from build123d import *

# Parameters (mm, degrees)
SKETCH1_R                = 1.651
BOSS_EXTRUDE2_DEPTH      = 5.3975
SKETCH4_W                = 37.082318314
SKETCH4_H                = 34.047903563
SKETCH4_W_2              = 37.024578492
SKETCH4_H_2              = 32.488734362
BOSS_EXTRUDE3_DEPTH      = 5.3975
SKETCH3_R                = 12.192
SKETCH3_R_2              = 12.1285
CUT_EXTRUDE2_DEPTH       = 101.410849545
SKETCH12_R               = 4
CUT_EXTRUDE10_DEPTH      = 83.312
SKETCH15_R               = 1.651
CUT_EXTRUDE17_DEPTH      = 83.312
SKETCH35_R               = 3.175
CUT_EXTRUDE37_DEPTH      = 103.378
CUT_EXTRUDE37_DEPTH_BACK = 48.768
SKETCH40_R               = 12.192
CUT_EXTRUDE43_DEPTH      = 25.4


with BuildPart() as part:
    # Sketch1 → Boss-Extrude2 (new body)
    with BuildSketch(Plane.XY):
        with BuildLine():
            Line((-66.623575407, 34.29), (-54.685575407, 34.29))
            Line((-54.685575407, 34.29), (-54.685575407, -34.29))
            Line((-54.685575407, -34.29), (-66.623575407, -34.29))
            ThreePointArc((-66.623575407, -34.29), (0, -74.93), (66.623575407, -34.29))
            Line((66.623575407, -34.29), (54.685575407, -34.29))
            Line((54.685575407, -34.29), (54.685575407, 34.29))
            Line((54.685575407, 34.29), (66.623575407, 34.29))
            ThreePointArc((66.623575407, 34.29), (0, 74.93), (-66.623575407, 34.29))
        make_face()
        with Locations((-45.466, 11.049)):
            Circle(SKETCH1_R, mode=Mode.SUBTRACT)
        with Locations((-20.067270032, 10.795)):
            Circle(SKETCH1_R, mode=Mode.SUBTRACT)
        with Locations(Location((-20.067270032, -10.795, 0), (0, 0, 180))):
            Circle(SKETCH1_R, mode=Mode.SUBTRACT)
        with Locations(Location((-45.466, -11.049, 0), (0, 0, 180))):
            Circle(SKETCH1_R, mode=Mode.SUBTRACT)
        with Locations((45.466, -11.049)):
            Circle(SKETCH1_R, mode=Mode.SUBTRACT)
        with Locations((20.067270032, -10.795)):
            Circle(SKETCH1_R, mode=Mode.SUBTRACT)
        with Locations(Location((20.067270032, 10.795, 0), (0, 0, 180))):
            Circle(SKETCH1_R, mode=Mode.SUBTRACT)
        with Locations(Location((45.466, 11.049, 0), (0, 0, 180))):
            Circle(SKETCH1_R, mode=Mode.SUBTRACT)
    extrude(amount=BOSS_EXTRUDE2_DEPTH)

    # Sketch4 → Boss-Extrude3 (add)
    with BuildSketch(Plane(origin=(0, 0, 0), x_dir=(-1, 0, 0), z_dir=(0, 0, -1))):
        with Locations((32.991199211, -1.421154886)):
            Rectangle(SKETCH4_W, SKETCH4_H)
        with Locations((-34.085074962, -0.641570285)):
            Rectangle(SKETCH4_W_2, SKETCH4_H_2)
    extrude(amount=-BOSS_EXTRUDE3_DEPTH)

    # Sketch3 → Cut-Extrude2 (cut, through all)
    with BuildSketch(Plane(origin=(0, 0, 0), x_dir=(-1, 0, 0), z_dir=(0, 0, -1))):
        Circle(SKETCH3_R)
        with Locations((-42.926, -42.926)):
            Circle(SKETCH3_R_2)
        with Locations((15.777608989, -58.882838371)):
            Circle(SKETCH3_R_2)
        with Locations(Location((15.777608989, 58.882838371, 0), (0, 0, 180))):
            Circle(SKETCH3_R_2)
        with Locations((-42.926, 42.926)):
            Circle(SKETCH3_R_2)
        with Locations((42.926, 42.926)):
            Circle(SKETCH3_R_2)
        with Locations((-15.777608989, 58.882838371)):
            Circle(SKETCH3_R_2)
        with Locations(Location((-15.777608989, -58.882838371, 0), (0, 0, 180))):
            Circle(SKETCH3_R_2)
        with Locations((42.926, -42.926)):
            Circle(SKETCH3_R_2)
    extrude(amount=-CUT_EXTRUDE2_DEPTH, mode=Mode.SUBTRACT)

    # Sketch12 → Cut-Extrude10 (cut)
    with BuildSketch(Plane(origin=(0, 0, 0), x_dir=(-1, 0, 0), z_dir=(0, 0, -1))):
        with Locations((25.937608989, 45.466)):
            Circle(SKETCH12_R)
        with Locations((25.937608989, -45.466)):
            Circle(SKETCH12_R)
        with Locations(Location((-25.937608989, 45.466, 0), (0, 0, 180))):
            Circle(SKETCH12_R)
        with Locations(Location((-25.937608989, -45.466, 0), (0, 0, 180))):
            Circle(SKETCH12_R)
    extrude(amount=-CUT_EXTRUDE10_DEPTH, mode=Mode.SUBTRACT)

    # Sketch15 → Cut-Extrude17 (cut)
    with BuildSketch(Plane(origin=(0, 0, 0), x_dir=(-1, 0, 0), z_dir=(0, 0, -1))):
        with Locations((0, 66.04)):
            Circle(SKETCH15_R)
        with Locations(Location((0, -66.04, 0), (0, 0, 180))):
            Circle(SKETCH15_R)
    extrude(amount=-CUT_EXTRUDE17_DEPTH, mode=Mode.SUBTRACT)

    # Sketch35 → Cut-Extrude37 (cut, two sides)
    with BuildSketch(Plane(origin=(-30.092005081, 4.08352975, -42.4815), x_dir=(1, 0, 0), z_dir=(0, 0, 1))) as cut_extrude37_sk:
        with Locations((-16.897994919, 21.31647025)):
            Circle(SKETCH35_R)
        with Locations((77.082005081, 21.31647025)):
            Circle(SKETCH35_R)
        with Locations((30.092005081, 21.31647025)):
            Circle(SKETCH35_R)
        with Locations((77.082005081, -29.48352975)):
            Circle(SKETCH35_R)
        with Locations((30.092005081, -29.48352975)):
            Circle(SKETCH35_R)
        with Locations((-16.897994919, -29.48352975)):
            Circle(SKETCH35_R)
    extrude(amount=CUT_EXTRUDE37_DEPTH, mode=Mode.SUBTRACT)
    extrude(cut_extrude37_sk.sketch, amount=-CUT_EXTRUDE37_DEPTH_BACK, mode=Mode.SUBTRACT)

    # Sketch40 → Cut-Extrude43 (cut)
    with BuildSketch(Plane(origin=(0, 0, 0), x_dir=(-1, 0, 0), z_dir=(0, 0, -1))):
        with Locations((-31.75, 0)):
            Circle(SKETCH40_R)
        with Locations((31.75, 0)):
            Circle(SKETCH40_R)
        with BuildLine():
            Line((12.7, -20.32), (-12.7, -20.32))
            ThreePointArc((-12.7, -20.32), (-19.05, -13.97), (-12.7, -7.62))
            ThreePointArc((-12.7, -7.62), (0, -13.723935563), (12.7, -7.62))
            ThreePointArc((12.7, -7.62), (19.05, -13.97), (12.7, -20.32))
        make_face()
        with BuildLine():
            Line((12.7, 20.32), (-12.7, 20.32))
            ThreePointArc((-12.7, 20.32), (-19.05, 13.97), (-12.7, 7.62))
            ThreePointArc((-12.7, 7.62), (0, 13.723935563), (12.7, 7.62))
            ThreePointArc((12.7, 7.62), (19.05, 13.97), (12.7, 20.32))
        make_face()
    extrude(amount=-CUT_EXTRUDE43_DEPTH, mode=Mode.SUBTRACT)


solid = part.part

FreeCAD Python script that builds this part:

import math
import FreeCAD as App
import Part
import Sketcher
Q = App.Units.Quantity

doc = App.newDocument("Part")
body = doc.addObject("PartDesign::Body", "Body")

# Sketch on XY plane
sketch1 = body.newObject("Sketcher::SketchObject", "Sketch")
sketch1.AttachmentSupport = (doc.getObject("XY_Plane"), [""])
sketch1.MapMode = "FlatFace"
sketch1.addGeometry(Part.LineSegment(App.Vector(-66.6, 34.3, 0), App.Vector(-54.7, 34.3, 0)), False)
sketch1.addGeometry(Part.LineSegment(App.Vector(-54.7, 34.3, 0), App.Vector(-54.7, -34.3, 0)), False)
sketch1.addGeometry(Part.LineSegment(App.Vector(-54.7, -34.3, 0), App.Vector(-66.6, -34.3, 0)), False)
sketch1.addGeometry(Part.ArcOfCircle(Part.Circle(App.Vector(0, 0, 0), App.Vector(0, 0, 1), 74.9), math.radians(-153), math.radians(-27)), False)
sketch1.addGeometry(Part.LineSegment(App.Vector(66.6, -34.3, 0), App.Vector(54.7, -34.3, 0)), False)
sketch1.addGeometry(Part.LineSegment(App.Vector(54.7, -34.3, 0), App.Vector(54.7, 34.3, 0)), False)
sketch1.addGeometry(Part.LineSegment(App.Vector(54.7, 34.3, 0), App.Vector(66.6, 34.3, 0)), False)
sketch1.addGeometry(Part.ArcOfCircle(Part.Circle(App.Vector(0, 0, 0), App.Vector(0, 0, 1), 74.9), math.radians(27), math.radians(153)), False)
sketch1.addGeometry(Part.Circle(App.Vector(-45.5, -11, 0), App.Vector(0, 0, 1), 1.7), False)
sketch1.addGeometry(Part.Circle(App.Vector(-20.1, -10.8, 0), App.Vector(0, 0, 1), 1.7), False)
sketch1.addGeometry(Part.Circle(App.Vector(20.1, -10.8, 0), App.Vector(0, 0, 1), 1.7), False)
sketch1.addGeometry(Part.Circle(App.Vector(45.5, -11, 0), App.Vector(0, 0, 1), 1.7), False)
sketch1.addGeometry(Part.Circle(App.Vector(-45.5, 11, 0), App.Vector(0, 0, 1), 1.7), False)
sketch1.addGeometry(Part.Circle(App.Vector(-20.1, 10.8, 0), App.Vector(0, 0, 1), 1.7), False)
sketch1.addGeometry(Part.Circle(App.Vector(20.1, 10.8, 0), App.Vector(0, 0, 1), 1.7), False)
sketch1.addGeometry(Part.Circle(App.Vector(45.5, 11, 0), App.Vector(0, 0, 1), 1.7), False)
sketch1.addConstraint(Sketcher.Constraint("Coincident", 0, 2, 1, 1))
sketch1.addConstraint(Sketcher.Constraint("Coincident", 1, 2, 2, 1))
sketch1.addConstraint(Sketcher.Constraint("Coincident", 2, 2, 3, 1))
sketch1.addConstraint(Sketcher.Constraint("Coincident", 3, 2, 4, 1))
sketch1.addConstraint(Sketcher.Constraint("Coincident", 4, 2, 5, 1))
sketch1.addConstraint(Sketcher.Constraint("Coincident", 5, 2, 6, 1))
sketch1.addConstraint(Sketcher.Constraint("Coincident", 6, 2, 7, 1))
sketch1.addConstraint(Sketcher.Constraint("Coincident", 7, 2, 0, 1))
sketch1.addConstraint(Sketcher.Constraint("Horizontal", 0))
sketch1.addConstraint(Sketcher.Constraint("Vertical", 1))
sketch1.addConstraint(Sketcher.Constraint("Horizontal", 2))
sketch1.addConstraint(Sketcher.Constraint("Horizontal", 4))
sketch1.addConstraint(Sketcher.Constraint("Vertical", 5))
sketch1.addConstraint(Sketcher.Constraint("Horizontal", 6))
sketch1.addConstraint(Sketcher.Constraint("Coincident", 3, 3, -1, 1))
sketch1.addConstraint(Sketcher.Constraint("Coincident", 7, 3, -1, 1))
sketch1.addConstraint(Sketcher.Constraint("Equal", 3, 7))
sketch1.addConstraint(Sketcher.Constraint("Equal", 8, 9))
sketch1.addConstraint(Sketcher.Constraint("Equal", 9, 10))
sketch1.addConstraint(Sketcher.Constraint("Equal", 10, 11))
sketch1.addConstraint(Sketcher.Constraint("Equal", 11, 12))
sketch1.addConstraint(Sketcher.Constraint("Equal", 12, 13))
sketch1.addConstraint(Sketcher.Constraint("Equal", 13, 14))
sketch1.addConstraint(Sketcher.Constraint("Equal", 14, 15))
sketch1.addConstraint(Sketcher.Constraint("Symmetric", 11, 3, 12, 3, -1, 1))
sketch1.addConstraint(Sketcher.Constraint("Symmetric", 10, 3, 13, 3, -1, 1))
sketch1.addConstraint(Sketcher.Constraint("Symmetric", 9, 3, 14, 3, -1, 1))
sketch1.addConstraint(Sketcher.Constraint("Symmetric", 8, 3, 15, 3, -1, 1))
sketch1.addConstraint(Sketcher.Constraint("Symmetric", 0, 2, 4, 2, -1, 1))
sketch1.addConstraint(Sketcher.Constraint("Symmetric", 9, 3, 10, 3, -2))
sketch1.addConstraint(Sketcher.Constraint("Symmetric", 8, 3, 11, 3, -2))
sketch1.addConstraint(Sketcher.Constraint("Horizontal", 2, 2, 3, 2))
sketch1.addConstraint(Sketcher.Constraint("Horizontal", 0, 2, 5, 2))
sketch1.addConstraint(Sketcher.Constraint("Diameter", 8, Q("0.13 in")))
sketch1.addConstraint(Sketcher.Constraint("Radius", 3, Q("2.95 in")))
sketch1.addConstraint(Sketcher.Constraint("DistanceY", 1, 2, 1, 1, Q("2.7 in")))
sketch1.addConstraint(Sketcher.Constraint("DistanceX", 0, 1, 0, 2, Q("0.47 in")))
sketch1.addConstraint(Sketcher.Constraint("DistanceX", 8, 3, -1, 1, Q("1.79 in")))
sketch1.addConstraint(Sketcher.Constraint("DistanceY", 8, 3, 9, 3, Q("0.01 in")))
sketch1.addConstraint(Sketcher.Constraint("DistanceY", 8, 3, 12, 3, Q("0.87 in")))
sketch1.addConstraint(Sketcher.Constraint("DistanceX", 9, 3, 10, 3, Q("1.5801 in")))
pad1 = body.newObject("PartDesign::Pad", "Pad")
pad1.Profile = sketch1
pad1.Length = Q("0.2125 in")

# Sketch on XY plane
sketch2 = body.newObject("Sketcher::SketchObject", "Sketch001")
sketch2.AttachmentSupport = (doc.getObject("XY_Plane"), [""])
sketch2.MapMode = "FlatFace"
sketch2.addGeometry(Part.LineSegment(App.Vector(-14, 16, 0), App.Vector(-14, -18, 0)), False)
sketch2.addGeometry(Part.LineSegment(App.Vector(-14, -18, 0), App.Vector(-52, -18, 0)), False)
sketch2.addGeometry(Part.LineSegment(App.Vector(-52, -18, 0), App.Vector(-52, 16, 0)), False)
sketch2.addGeometry(Part.LineSegment(App.Vector(-52, 16, 0), App.Vector(-14, 16, 0)), False)
sketch2.addGeometry(Part.LineSegment(App.Vector(53, 16, 0), App.Vector(53, -17, 0)), False)
sketch2.addGeometry(Part.LineSegment(App.Vector(53, -17, 0), App.Vector(16, -17, 0)), False)
sketch2.addGeometry(Part.LineSegment(App.Vector(16, -17, 0), App.Vector(16, 16, 0)), False)
sketch2.addGeometry(Part.LineSegment(App.Vector(16, 16, 0), App.Vector(53, 16, 0)), False)
sketch2.addConstraint(Sketcher.Constraint("Coincident", 0, 2, 1, 1))
sketch2.addConstraint(Sketcher.Constraint("Coincident", 1, 2, 2, 1))
sketch2.addConstraint(Sketcher.Constraint("Coincident", 2, 2, 3, 1))
sketch2.addConstraint(Sketcher.Constraint("Coincident", 3, 2, 0, 1))
sketch2.addConstraint(Sketcher.Constraint("Coincident", 4, 2, 5, 1))
sketch2.addConstraint(Sketcher.Constraint("Coincident", 5, 2, 6, 1))
sketch2.addConstraint(Sketcher.Constraint("Coincident", 6, 2, 7, 1))
sketch2.addConstraint(Sketcher.Constraint("Coincident", 7, 2, 4, 1))
sketch2.addConstraint(Sketcher.Constraint("Vertical", 0))
sketch2.addConstraint(Sketcher.Constraint("Horizontal", 1))
sketch2.addConstraint(Sketcher.Constraint("Vertical", 2))
sketch2.addConstraint(Sketcher.Constraint("Horizontal", 3))
sketch2.addConstraint(Sketcher.Constraint("Vertical", 4))
sketch2.addConstraint(Sketcher.Constraint("Horizontal", 5))
sketch2.addConstraint(Sketcher.Constraint("Vertical", 6))
sketch2.addConstraint(Sketcher.Constraint("Horizontal", 7))
sketch2.addConstraint(Sketcher.Constraint("Horizontal", 3, 2, 6, 2))
sketch2.addConstraint(Sketcher.Constraint("DistanceX", 1, 2, 1, 1, 37.082318))
sketch2.addConstraint(Sketcher.Constraint("DistanceX", 5, 2, 5, 1, 37.024578))
sketch2.addConstraint(Sketcher.Constraint("DistanceY", 0, 2, 0, 1, 34.047904))
sketch2.addConstraint(Sketcher.Constraint("DistanceY", 4, 2, 4, 1, 32.488734))
sketch2.addConstraint(Sketcher.Constraint("DistanceX", 0, 2, -1, 1, 14.45004))
sketch2.addConstraint(Sketcher.Constraint("DistanceY", 0, 2, -1, 1, 18.445107))
sketch2.addConstraint(Sketcher.Constraint("DistanceX", -1, 1, 4, 2, 52.597364))
pad2 = body.newObject("PartDesign::Pad", "Pad001")
pad2.Profile = sketch2
pad2.Length = Q("0.2125 in")

# Sketch on XY plane
sketch3 = body.newObject("Sketcher::SketchObject", "Sketch002")
sketch3.AttachmentSupport = (doc.getObject("XY_Plane"), [""])
sketch3.MapMode = "FlatFace"
sketch3.addGeometry(Part.Circle(App.Vector(0, 0, 0), App.Vector(0, 0, 1), 12), False)
sketch3.addGeometry(Part.Circle(App.Vector(43, -43, 0), App.Vector(0, 0, 1), 12), False)
sketch3.addGeometry(Part.Circle(App.Vector(-16, -59, 0), App.Vector(0, 0, 1), 12), False)
sketch3.addGeometry(Part.Circle(App.Vector(-16, 59, 0), App.Vector(0, 0, 1), 12), False)
sketch3.addGeometry(Part.Circle(App.Vector(43, 43, 0), App.Vector(0, 0, 1), 12), False)
sketch3.addGeometry(Part.Circle(App.Vector(-43, 43, 0), App.Vector(0, 0, 1), 12), False)
sketch3.addGeometry(Part.Circle(App.Vector(16, 59, 0), App.Vector(0, 0, 1), 12), False)
sketch3.addGeometry(Part.Circle(App.Vector(16, -59, 0), App.Vector(0, 0, 1), 12), False)
sketch3.addGeometry(Part.Circle(App.Vector(-43, -43, 0), App.Vector(0, 0, 1), 12), False)
sketch3.addConstraint(Sketcher.Constraint("Coincident", 0, 3, -1, 1))
sketch3.addConstraint(Sketcher.Constraint("Equal", 1, 2))
sketch3.addConstraint(Sketcher.Constraint("Equal", 2, 3))
sketch3.addConstraint(Sketcher.Constraint("Equal", 3, 4))
sketch3.addConstraint(Sketcher.Constraint("Equal", 4, 5))
sketch3.addConstraint(Sketcher.Constraint("Equal", 5, 6))
sketch3.addConstraint(Sketcher.Constraint("Equal", 6, 7))
sketch3.addConstraint(Sketcher.Constraint("Equal", 7, 8))
sketch3.addConstraint(Sketcher.Constraint("Symmetric", 1, 3, 5, 3, -1, 1))
sketch3.addConstraint(Sketcher.Constraint("Symmetric", 2, 3, 6, 3, -1, 1))
sketch3.addConstraint(Sketcher.Constraint("Symmetric", 3, 3, 7, 3, -1, 1))
sketch3.addConstraint(Sketcher.Constraint("Symmetric", 4, 3, 8, 3, -1, 1))
sketch3.addConstraint(Sketcher.Constraint("Symmetric", 4, 3, 5, 3, -2))
sketch3.addConstraint(Sketcher.Constraint("Symmetric", 3, 3, 6, 3, -2))
sketch3.addConstraint(Sketcher.Constraint("Diameter", 0, Q("0.96 in")))
sketch3.addConstraint(Sketcher.Constraint("Diameter", 1, Q("0.955 in")))
sketch3.addConstraint(Sketcher.Constraint("DistanceX", -1, 1, 1, 3, Q("1.69 in")))
sketch3.addConstraint(Sketcher.Constraint("DistanceY", 1, 3, -1, 1, Q("1.69 in")))
sketch3.addConstraint(Sketcher.Constraint("DistanceX", 2, 3, -1, 1, 15.777609))
sketch3.addConstraint(Sketcher.Constraint("DistanceY", 2, 3, -1, 1, 58.882838))
pocket1 = body.newObject("PartDesign::Pocket", "Pocket")
pocket1.Profile = sketch3
pocket1.Type = "ThroughAll"
pocket1.Reversed = True

# Sketch on XY plane
sketch4 = body.newObject("Sketcher::SketchObject", "Sketch003")
sketch4.AttachmentSupport = (doc.getObject("XY_Plane"), [""])
sketch4.MapMode = "FlatFace"
sketch4.addGeometry(Part.Circle(App.Vector(-25.9, 45.5, 0), App.Vector(0, 0, 1), 4), False)
sketch4.addGeometry(Part.Circle(App.Vector(-25.9, -45.5, 0), App.Vector(0, 0, 1), 4), False)
sketch4.addGeometry(Part.Circle(App.Vector(25.9, 45.5, 0), App.Vector(0, 0, 1), 4), False)
sketch4.addGeometry(Part.Circle(App.Vector(25.9, -45.5, 0), App.Vector(0, 0, 1), 4), False)
sketch4.addConstraint(Sketcher.Constraint("Equal", 0, 1))
sketch4.addConstraint(Sketcher.Constraint("Equal", 1, 2))
sketch4.addConstraint(Sketcher.Constraint("Equal", 2, 3))
sketch4.addConstraint(Sketcher.Constraint("Symmetric", 1, 3, 2, 3, -1, 1))
sketch4.addConstraint(Sketcher.Constraint("Symmetric", 0, 3, 3, 3, -1, 1))
sketch4.addConstraint(Sketcher.Constraint("Symmetric", 0, 3, 2, 3, -2))
sketch4.addConstraint(Sketcher.Constraint("Diameter", 0, 8.0))
sketch4.addConstraint(Sketcher.Constraint("DistanceY", -1, 1, 0, 3, Q("1.79 in")))
sketch4.addConstraint(Sketcher.Constraint("DistanceX", 0, 3, -1, 1, 25.937609))
pocket2 = body.newObject("PartDesign::Pocket", "Pocket001")
pocket2.Profile = sketch4
pocket2.Length = Q("3.28 in")
pocket2.Reversed = True

# Sketch on XY plane
sketch5 = body.newObject("Sketcher::SketchObject", "Sketch004")
sketch5.AttachmentSupport = (doc.getObject("XY_Plane"), [""])
sketch5.MapMode = "FlatFace"
sketch5.addGeometry(Part.Circle(App.Vector(0, 66, 0), App.Vector(0, 0, 1), 1.7), False)
sketch5.addGeometry(Part.Circle(App.Vector(0, -66, 0), App.Vector(0, 0, 1), 1.7), False)
sketch5.addConstraint(Sketcher.Constraint("Equal", 0, 1))
sketch5.addConstraint(Sketcher.Constraint("Symmetric", 0, 3, 1, 3, -1, 1))
sketch5.addConstraint(Sketcher.Constraint("PointOnObject", 0, 3, -2))
sketch5.addConstraint(Sketcher.Constraint("Diameter", 0, Q("0.13 in")))
sketch5.addConstraint(Sketcher.Constraint("DistanceY", -1, 1, 0, 3, Q("2.6 in")))
pocket3 = body.newObject("PartDesign::Pocket", "Pocket002")
pocket3.Profile = sketch5
pocket3.Length = Q("3.28 in")
pocket3.Reversed = True

# Sketch on XY plane
sketch6 = body.newObject("Sketcher::SketchObject", "Sketch005")
sketch6.AttachmentSupport = (doc.getObject("XY_Plane"), [""])
sketch6.MapMode = "FlatFace"
sketch6.AttachmentOffset = App.Placement(App.Vector(0, 0, -1.6725 * 25.4), App.Rotation())
sketch6.addGeometry(Part.Circle(App.Vector(-47, 25.4, 0), App.Vector(0, 0, 1), 3.2), False)
sketch6.addGeometry(Part.Circle(App.Vector(47, 25.4, 0), App.Vector(0, 0, 1), 3.2), False)
sketch6.addGeometry(Part.Circle(App.Vector(0, 25.4, 0), App.Vector(0, 0, 1), 3.2), False)
sketch6.addGeometry(Part.Circle(App.Vector(47, -25.4, 0), App.Vector(0, 0, 1), 3.2), False)
sketch6.addGeometry(Part.Circle(App.Vector(0, -25.4, 0), App.Vector(0, 0, 1), 3.2), False)
sketch6.addGeometry(Part.Circle(App.Vector(-47, -25.4, 0), App.Vector(0, 0, 1), 3.2), False)
sketch6.addConstraint(Sketcher.Constraint("Equal", 0, 1))
sketch6.addConstraint(Sketcher.Constraint("Equal", 1, 2))
sketch6.addConstraint(Sketcher.Constraint("Equal", 2, 3))
sketch6.addConstraint(Sketcher.Constraint("Equal", 3, 4))
sketch6.addConstraint(Sketcher.Constraint("Equal", 4, 5))
sketch6.addConstraint(Sketcher.Constraint("Symmetric", 0, 3, 3, 3, -1, 1))
sketch6.addConstraint(Sketcher.Constraint("Symmetric", 2, 3, 4, 3, -1, 1))
sketch6.addConstraint(Sketcher.Constraint("Symmetric", 1, 3, 5, 3, -1, 1))
sketch6.addConstraint(Sketcher.Constraint("Symmetric", 0, 3, 1, 3, -2))
sketch6.addConstraint(Sketcher.Constraint("PointOnObject", 2, 3, -2))
sketch6.addConstraint(Sketcher.Constraint("Horizontal", 1, 3, 2, 3))
sketch6.addConstraint(Sketcher.Constraint("Diameter", 0, Q("0.25 in")))
sketch6.addConstraint(Sketcher.Constraint("DistanceY", -1, 1, 0, 3, Q("1 in")))
sketch6.addConstraint(Sketcher.Constraint("DistanceX", 0, 3, 1, 3, Q("3.7 in")))
pocket4 = body.newObject("PartDesign::Pocket", "Pocket003")
pocket4.Profile = sketch6
pocket4.Type = "ThroughAll"
pocket4.Midplane = True

# Sketch on XY plane
sketch7 = body.newObject("Sketcher::SketchObject", "Sketch006")
sketch7.AttachmentSupport = (doc.getObject("XY_Plane"), [""])
sketch7.MapMode = "FlatFace"
sketch7.addGeometry(Part.Circle(App.Vector(32, 0, 0), App.Vector(0, 0, 1), 12), False)
sketch7.addGeometry(Part.Circle(App.Vector(-32, 0, 0), App.Vector(0, 0, 1), 12), False)
sketch7.addGeometry(Part.LineSegment(App.Vector(13, -20, 0), App.Vector(-13, -20, 0)), False)
sketch7.addGeometry(Part.ArcOfCircle(Part.Circle(App.Vector(-13, -14, 0), App.Vector(0, 0, 1), 6), math.radians(90), math.radians(270)), False)
sketch7.addGeometry(Part.ArcOfCircle(Part.Circle(App.Vector(0, 3, 0), App.Vector(0, 0, 1), 16), math.radians(-141), math.radians(-39)), False)
sketch7.addGeometry(Part.ArcOfCircle(Part.Circle(App.Vector(13, -14, 0), App.Vector(0, 0, 1), 6), math.radians(-90), math.radians(90)), False)
sketch7.addGeometry(Part.LineSegment(App.Vector(-13, 20, 0), App.Vector(13, 20, 0)), False)
sketch7.addGeometry(Part.ArcOfCircle(Part.Circle(App.Vector(13, 14, 0), App.Vector(0, 0, 1), 6), math.radians(-90), math.radians(90)), False)
sketch7.addGeometry(Part.ArcOfCircle(Part.Circle(App.Vector(0, -3, 0), App.Vector(0, 0, 1), 16), math.radians(39), math.radians(141)), False)
sketch7.addGeometry(Part.ArcOfCircle(Part.Circle(App.Vector(-13, 14, 0), App.Vector(0, 0, 1), 6), math.radians(90), math.radians(270)), False)
sketch7.addConstraint(Sketcher.Constraint("Tangent", 2, 2, 3, 2))
sketch7.addConstraint(Sketcher.Constraint("Coincident", 3, 1, 4, 1))
sketch7.addConstraint(Sketcher.Constraint("Coincident", 4, 2, 5, 2))
sketch7.addConstraint(Sketcher.Constraint("Tangent", 5, 1, 2, 1))
sketch7.addConstraint(Sketcher.Constraint("Tangent", 6, 2, 7, 2))
sketch7.addConstraint(Sketcher.Constraint("Coincident", 7, 1, 8, 1))
sketch7.addConstraint(Sketcher.Constraint("Coincident", 8, 2, 9, 2))
sketch7.addConstraint(Sketcher.Constraint("Tangent", 9, 1, 6, 1))
sketch7.addConstraint(Sketcher.Constraint("Horizontal", 2))
sketch7.addConstraint(Sketcher.Constraint("Horizontal", 6))
sketch7.addConstraint(Sketcher.Constraint("Equal", 0, 1))
sketch7.addConstraint(Sketcher.Constraint("Equal", 3, 5))
sketch7.addConstraint(Sketcher.Constraint("Equal", 5, 7))
sketch7.addConstraint(Sketcher.Constraint("Equal", 4, 8))
sketch7.addConstraint(Sketcher.Constraint("Equal", 7, 9))
sketch7.addConstraint(Sketcher.Constraint("Symmetric", 0, 3, 1, 3, -1, 1))
sketch7.addConstraint(Sketcher.Constraint("Symmetric", 3, 3, 7, 3, -1, 1))
sketch7.addConstraint(Sketcher.Constraint("Symmetric", 4, 3, 8, 3, -1, 1))
sketch7.addConstraint(Sketcher.Constraint("PointOnObject", 0, 3, -1))
sketch7.addConstraint(Sketcher.Constraint("PointOnObject", 4, 3, -2))
sketch7.addConstraint(Sketcher.Constraint("Vertical", 5, 3, 7, 3))
sketch7.addConstraint(Sketcher.Constraint("Vertical", 3, 3, 9, 3))
sketch7.addConstraint(Sketcher.Constraint("Vertical", 2, 2, 3, 1))
sketch7.addConstraint(Sketcher.Constraint("Diameter", 0, Q("0.96 in")))
sketch7.addConstraint(Sketcher.Constraint("DistanceX", 2, 2, 2, 1, Q("1 in")))
sketch7.addConstraint(Sketcher.Constraint("Radius", 3, Q("0.25 in")))
sketch7.addConstraint(Sketcher.Constraint("DistanceY", -1, 1, 4, 3, Q("0.1 in")))
sketch7.addConstraint(Sketcher.Constraint("DistanceY", 2, 2, -1, 1, Q("0.8 in")))
sketch7.addConstraint(Sketcher.Constraint("DistanceX", 1, 3, 0, 3, Q("2.5 in")))
pocket5 = body.newObject("PartDesign::Pocket", "Pocket004")
pocket5.Profile = sketch7
pocket5.Length = Q("1 in")
pocket5.Reversed = True

doc.recompute()
